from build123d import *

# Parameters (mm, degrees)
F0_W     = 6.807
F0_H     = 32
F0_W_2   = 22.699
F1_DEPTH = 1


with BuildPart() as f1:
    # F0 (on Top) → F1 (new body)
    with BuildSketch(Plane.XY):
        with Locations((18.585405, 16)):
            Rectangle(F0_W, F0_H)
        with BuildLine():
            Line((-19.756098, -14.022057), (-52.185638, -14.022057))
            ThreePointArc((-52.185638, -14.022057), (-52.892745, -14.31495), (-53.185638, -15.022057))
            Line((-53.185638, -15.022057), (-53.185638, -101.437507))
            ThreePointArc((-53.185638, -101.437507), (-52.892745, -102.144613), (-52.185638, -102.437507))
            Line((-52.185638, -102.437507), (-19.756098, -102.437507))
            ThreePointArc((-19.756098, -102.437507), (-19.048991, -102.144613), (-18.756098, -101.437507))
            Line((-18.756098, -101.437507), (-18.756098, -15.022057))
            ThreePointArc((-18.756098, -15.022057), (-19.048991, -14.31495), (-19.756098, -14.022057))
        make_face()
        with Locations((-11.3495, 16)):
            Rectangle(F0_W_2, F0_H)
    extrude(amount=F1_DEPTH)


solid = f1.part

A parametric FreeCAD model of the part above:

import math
import FreeCAD as App
import Part
import Sketcher

V = App.Vector
Q = App.Units.Quantity

doc = App.newDocument("Part")
body = doc.addObject("PartDesign::Body", "Body")
body.AllowCompound = True

# Sketch on XY plane
sketch1 = doc.addObject("Sketcher::SketchObject", "Sketch")
body.addObject(sketch1)
sketch1.AttachmentSupport = (doc.XY_Plane, [""])
sketch1.MapMode = "FlatFace"
sketch1.addGeometry([
    Part.LineSegment(V(15.2, 32, 0), V(15.2, 0, 0)),  # 0
    Part.LineSegment(V(15.2, 0, 0), V(22, 0, 0)),  # 1
    Part.LineSegment(V(22, 0, 0), V(22, 32, 0)),  # 2
    Part.LineSegment(V(22, 32, 0), V(15.2, 32, 0)),  # 3
    Part.LineSegment(V(-19.8, -14, 0), V(-52.2, -14, 0)),  # 4
    Part.ArcOfCircle(Part.Circle(V(-52.2, -15, 0), V(0, 0, 1), 1), math.radians(90), math.radians(180)),  # 5
    Part.LineSegment(V(-53.2, -15, 0), V(-53.2, -101.4, 0)),  # 6
    Part.ArcOfCircle(Part.Circle(V(-52.2, -101.4, 0), V(0, 0, 1), 1), math.radians(-180), math.radians(-90)),  # 7
    Part.LineSegment(V(-52.2, -102.4, 0), V(-19.8, -102.4, 0)),  # 8
    Part.ArcOfCircle(Part.Circle(V(-19.8, -101.4, 0), V(0, 0, 1), 1), math.radians(-90), math.radians(0)),  # 9
    Part.LineSegment(V(-18.8, -101.4, 0), V(-18.8, -15, 0)),  # 10
    Part.ArcOfCircle(Part.Circle(V(-19.8, -15, 0), V(0, 0, 1), 1), math.radians(0), math.radians(90)),  # 11
    Part.LineSegment(V(-22.7, 32, 0), V(-22.7, 0, 0)),  # 12
    Part.LineSegment(V(-22.7, 0, 0), V(0, 0, 0)),  # 13
    Part.LineSegment(V(0, 0, 0), V(0, 32, 0)),  # 14
    Part.LineSegment(V(0, 32, 0), V(-22.7, 32, 0)),  # 15
], False)
sketch1.addConstraint([
    Sketcher.Constraint("Coincident", 0, 2, 1, 1),
    Sketcher.Constraint("Coincident", 1, 2, 2, 1),
    Sketcher.Constraint("Coincident", 2, 2, 3, 1),
    Sketcher.Constraint("Coincident", 3, 2, 0, 1),
    Sketcher.Constraint("Tangent", 4, 2, 5, 1),
    Sketcher.Constraint("Tangent", 5, 2, 6, 1),
    Sketcher.Constraint("Tangent", 6, 2, 7, 1),
    Sketcher.Constraint("Tangent", 7, 2, 8, 1),
    Sketcher.Constraint("Tangent", 8, 2, 9, 1),
    Sketcher.Constraint("Tangent", 9, 2, 10, 1),
    Sketcher.Constraint("Tangent", 10, 2, 11, 1),
    Sketcher.Constraint("Tangent", 11, 2, 4, 1),
    Sketcher.Constraint("Coincident", 12, 2, 13, 1),
    Sketcher.Constraint("Coincident", 13, 2, 14, 1),
    Sketcher.Constraint("Coincident", 14, 2, 15, 1),
    Sketcher.Constraint("Coincident", 15, 2, 12, 1),
    Sketcher.Constraint("Vertical", 0),
    Sketcher.Constraint("Horizontal", 1),
    Sketcher.Constraint("Vertical", 2),
    Sketcher.Constraint("Horizontal", 3),
    Sketcher.Constraint("Horizontal", 4),
    Sketcher.Constraint("Vertical", 6),
    Sketcher.Constraint("Horizontal", 8),
    Sketcher.Constraint("Vertical", 10),
    Sketcher.Constraint("Vertical", 12),
    Sketcher.Constraint("Horizontal", 13),
    Sketcher.Constraint("Vertical", 14),
    Sketcher.Constraint("Horizontal", 15),
    Sketcher.Constraint("Coincident", 13, 2, -1, 1),
    Sketcher.Constraint("Equal", 5, 7),
    Sketcher.Constraint("Equal", 7, 9),
    Sketcher.Constraint("Equal", 9, 11),
    Sketcher.Constraint("PointOnObject", 0, 2, -1),
    Sketcher.Constraint("Horizontal", 3, 2, 14, 2),
    Sketcher.Constraint("Radius", 5, Q("0.999999 mm")),
    Sketcher.Constraint("DistanceY", 0, 2, 0, 1, Q("32 mm")),
    Sketcher.Constraint("DistanceX", 1, 1, 1, 2, Q("6.807 mm")),
    Sketcher.Constraint("DistanceX", 13, 1, 13, 2, Q("22.699 mm")),
    Sketcher.Constraint("DistanceX", 4, 2, 4, 1, Q("32.42954 mm")),
    Sketcher.Constraint("DistanceY", 6, 2, 6, 1, Q("86.41545 mm")),
    Sketcher.Constraint("DistanceX", 9, 3, -1, 1, Q("19.756099 mm")),
    Sketcher.Constraint("DistanceY", 5, 3, -1, 1, Q("15.022056 mm")),
    Sketcher.Constraint("DistanceX", -1, 1, 0, 2, Q("15.181905 mm")),
])
pad1 = doc.addObject("PartDesign::Pad", "Pad")
body.addObject(pad1)
pad1.Profile = sketch1
pad1.Length = 1

doc.recompute()
